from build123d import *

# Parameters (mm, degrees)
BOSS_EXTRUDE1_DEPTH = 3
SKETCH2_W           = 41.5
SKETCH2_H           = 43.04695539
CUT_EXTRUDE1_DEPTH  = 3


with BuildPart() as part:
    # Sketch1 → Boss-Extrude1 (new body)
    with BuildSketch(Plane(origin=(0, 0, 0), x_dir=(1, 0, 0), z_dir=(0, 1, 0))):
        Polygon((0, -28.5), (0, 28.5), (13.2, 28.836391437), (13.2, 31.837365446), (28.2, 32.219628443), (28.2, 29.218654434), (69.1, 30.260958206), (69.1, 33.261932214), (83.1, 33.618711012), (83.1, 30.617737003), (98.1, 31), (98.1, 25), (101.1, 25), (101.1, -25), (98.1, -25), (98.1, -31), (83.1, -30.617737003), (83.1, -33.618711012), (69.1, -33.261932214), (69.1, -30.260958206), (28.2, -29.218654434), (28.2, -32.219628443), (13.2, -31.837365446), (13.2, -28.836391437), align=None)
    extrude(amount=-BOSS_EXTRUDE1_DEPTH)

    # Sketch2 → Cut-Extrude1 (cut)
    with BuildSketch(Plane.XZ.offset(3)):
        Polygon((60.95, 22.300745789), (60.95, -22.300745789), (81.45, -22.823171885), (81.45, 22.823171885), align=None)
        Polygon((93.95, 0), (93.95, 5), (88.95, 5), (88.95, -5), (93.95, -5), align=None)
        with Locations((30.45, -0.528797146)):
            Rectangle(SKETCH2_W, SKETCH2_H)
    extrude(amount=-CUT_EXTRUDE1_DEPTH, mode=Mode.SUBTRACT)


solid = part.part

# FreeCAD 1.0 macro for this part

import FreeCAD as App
import Part
import Sketcher

V = App.Vector
Q = App.Units.Quantity


def add_polygon(sketch, points):
    """Adds a closed chain of lines whose ends are joined by coincident constraints."""
    first, n = sketch.GeometryCount, len(points)
    for a, b in zip(points, points[1:] + points[:1]):
        sketch.addGeometry(Part.LineSegment(App.Vector(*a, 0), App.Vector(*b, 0)), False)
    for i in range(n):
        sketch.addConstraint(Sketcher.Constraint("Coincident", first + i, 2, first + (i + 1) % n, 1))

doc = App.newDocument("Part")
body = doc.addObject("PartDesign::Body", "Body")

# Sketch on XZ plane
sketch1 = doc.addObject("Sketcher::SketchObject", "Sketch")
body.addObject(sketch1)
sketch1.AttachmentSupport = (doc.XZ_Plane, [""])
sketch1.MapMode = "FlatFace"
add_polygon(sketch1, [(0, -28.5), (0, 28.5), (13.2, 28.8), (13.2, 31.8), (28.2, 32.2), (28.2, 29.2), (69.1, 30.3), (69.1, 33.3), (83.1, 33.6), (83.1, 30.6), (98.1, 31), (98.1, 25), (101.1, 25), (101.1, -25), (98.1, -25), (98.1, -31), (83.1, -30.6), (83.1, -33.6), (69.1, -33.3), (69.1, -30.3), (28.2, -29.2), (28.2, -32.2), (13.2, -31.8), (13.2, -28.8)])  # lines 0-23
sketch1.addConstraint([
    Sketcher.Constraint("Vertical", 0),
    Sketcher.Constraint("Vertical", 2),
    Sketcher.Constraint("Vertical", 4),
    Sketcher.Constraint("Vertical", 6),
    Sketcher.Constraint("Vertical", 8),
    Sketcher.Constraint("Vertical", 10),
    Sketcher.Constraint("Horizontal", 11),
    Sketcher.Constraint("Vertical", 12),
    Sketcher.Constraint("Horizontal", 13),
    Sketcher.Constraint("Vertical", 14),
    Sketcher.Constraint("Vertical", 16),
    Sketcher.Constraint("Vertical", 18),
    Sketcher.Constraint("Vertical", 20),
    Sketcher.Constraint("Vertical", 22),
    Sketcher.Constraint("Symmetric", 0, 2, 23, 2, -1, 1),
    Sketcher.Constraint("Symmetric", 10, 2, 13, 2, -1),
    Sketcher.Constraint("Symmetric", 8, 2, 15, 2, -1),
    Sketcher.Constraint("Symmetric", 6, 2, 17, 2, -1),
    Sketcher.Constraint("Symmetric", 4, 2, 19, 2, -1),
    Sketcher.Constraint("Symmetric", 2, 2, 21, 2, -1),
    Sketcher.Constraint("Parallel", 1, 3),
    Sketcher.Constraint("Parallel", 3, 5),
    Sketcher.Constraint("Parallel", 5, 7),
    Sketcher.Constraint("Parallel", 7, 9),
    Sketcher.Constraint("Parallel", 15, 17),
    Sketcher.Constraint("Parallel", 17, 19),
    Sketcher.Constraint("Parallel", 19, 21),
    Sketcher.Constraint("Parallel", 21, 23),
    Sketcher.Constraint("Equal", 2, 4),
    Sketcher.Constraint("Equal", 4, 6),
    Sketcher.Constraint("Equal", 6, 8),
    Sketcher.Constraint("Equal", 10, 14),
    Sketcher.Constraint("Equal", 3, 9),
    Sketcher.Constraint("DistanceX", 11, 1, 11, 2, Q("3 mm")),
    Sketcher.Constraint("DistanceY", 0, 1, 0, 2, Q("57 mm")),
    Sketcher.Constraint("DistanceY", 10, 2, 10, 1, Q("6 mm")),
    Sketcher.Constraint("DistanceY", 12, 2, 12, 1, Q("50 mm")),
    Sketcher.Constraint("DistanceX", 2, 2, 3, 2, Q("15 mm")),
    Sketcher.Constraint("DistanceX", 6, 2, 7, 2, Q("14 mm")),
    Sketcher.Constraint("DistanceX", -1, 1, 1, 2, Q("13.2 mm")),
    Sketcher.Constraint("DistanceX", -1, 1, 5, 2, Q("69.1 mm")),
    Sketcher.Constraint("DistanceY", 2, 1, 2, 2, Q("3.000974 mm")),
])
pad1 = doc.addObject("PartDesign::Pad", "Pad")
body.addObject(pad1)
pad1.Profile = sketch1
pad1.Length = 3

# Sketch on XZ plane
sketch2 = doc.addObject("Sketcher::SketchObject", "Sketch001")
body.addObject(sketch2)
sketch2.AttachmentSupport = (doc.XZ_Plane, [""])
sketch2.MapMode = "FlatFace"
sketch2.AttachmentOffset = App.Placement(V(0, 0, 3), App.Rotation())
add_polygon(sketch2, [(61, 22), (61, -22), (81, -23), (81, 23)])  # lines 0-3
add_polygon(sketch2, [(94, 5), (89, 5), (89, -5), (94, -5)])  # lines 4-7
add_polygon(sketch2, [(10, 21), (10, -22), (51, -22), (51, 21)])  # lines 8-11
sketch2.addConstraint([
    Sketcher.Constraint("Vertical", 0),
    Sketcher.Constraint("Vertical", 2),
    Sketcher.Constraint("Horizontal", 4),
    Sketcher.Constraint("Vertical", 5),
    Sketcher.Constraint("Horizontal", 6),
    Sketcher.Constraint("Vertical", 7),
    Sketcher.Constraint("Vertical", 8),
    Sketcher.Constraint("Horizontal", 9),
    Sketcher.Constraint("Vertical", 10),
    Sketcher.Constraint("Horizontal", 11),
    Sketcher.Constraint("Equal", 1, 3),
    Sketcher.Constraint("DistanceX", 4, 2, 4, 1, Q("5 mm")),
    Sketcher.Constraint("DistanceY", 5, 2, 5, 1, Q("10 mm")),
    Sketcher.Constraint("DistanceX", 9, 1, 9, 2, Q("41.5 mm")),
    Sketcher.Constraint("DistanceY", -1, 1, 4, 2, Q("5 mm")),
    Sketcher.Constraint("DistanceX", 3, 2, 4, 2, Q("28 mm")),
    Sketcher.Constraint("DistanceX", -1, 1, 8, 2, Q("9.7 mm")),
    Sketcher.Constraint("DistanceX", 0, 2, 1, 2, Q("20.5 mm")),
    Sketcher.Constraint("DistanceX", -1, 1, 0, 2, Q("60.95 mm")),
    Sketcher.Constraint("DistanceY", 0, 2, 0, 1, Q("44.601492 mm")),
    Sketcher.Constraint("DistanceY", 2, 1, 2, 2, Q("45.646344 mm")),
    Sketcher.Constraint("DistanceY", 8, 2, 8, 1, Q("43.046955 mm")),
    Sketcher.Constraint("DistanceY", 1, 2, -1, 1, Q("22.823172 mm")),
    Sketcher.Constraint("DistanceY", -1, 1, 10, 2, Q("20.994681 mm")),
])
pocket1 = doc.addObject("PartDesign::Pocket", "Pocket")
body.addObject(pocket1)
pocket1.Profile = sketch2
pocket1.Length = 3

doc.recompute()
